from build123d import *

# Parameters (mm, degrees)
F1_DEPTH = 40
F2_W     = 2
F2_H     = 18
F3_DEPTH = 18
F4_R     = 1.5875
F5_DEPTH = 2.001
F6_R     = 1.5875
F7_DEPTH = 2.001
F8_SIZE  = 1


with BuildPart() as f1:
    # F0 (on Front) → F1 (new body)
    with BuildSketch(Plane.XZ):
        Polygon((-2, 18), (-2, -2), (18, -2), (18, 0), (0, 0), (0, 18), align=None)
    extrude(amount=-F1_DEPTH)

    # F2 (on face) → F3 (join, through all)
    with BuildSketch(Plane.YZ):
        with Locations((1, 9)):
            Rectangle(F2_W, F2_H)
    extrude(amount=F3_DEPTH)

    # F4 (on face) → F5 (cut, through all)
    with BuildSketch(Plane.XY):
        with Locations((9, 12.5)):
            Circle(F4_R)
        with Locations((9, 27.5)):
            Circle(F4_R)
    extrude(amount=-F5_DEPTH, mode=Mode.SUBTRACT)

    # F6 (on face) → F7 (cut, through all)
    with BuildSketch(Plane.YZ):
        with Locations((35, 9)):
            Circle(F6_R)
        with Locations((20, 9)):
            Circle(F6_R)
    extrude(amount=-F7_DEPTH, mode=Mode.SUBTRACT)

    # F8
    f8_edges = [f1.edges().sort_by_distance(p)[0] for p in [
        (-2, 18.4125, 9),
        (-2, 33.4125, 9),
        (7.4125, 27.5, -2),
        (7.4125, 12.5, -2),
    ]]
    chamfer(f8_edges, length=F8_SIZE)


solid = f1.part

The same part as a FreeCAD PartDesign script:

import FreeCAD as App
import Part
import Sketcher

V = App.Vector


def edges_at(feature, points):
    """Names of the edges that pass closest to the given points."""
    edges = feature.Shape.Edges
    near = lambda p: min(range(len(edges)), key=lambda i: edges[i].distToShape(Part.Vertex(*p))[0])
    return sorted({f"Edge{near(p) + 1}" for p in points})

doc = App.newDocument("Part")
params = doc.addObject("Spreadsheet::Sheet", "Params")
for row, (alias, value) in enumerate([
    ("sketch1_width", "20 mm"),
    ("sketch1_width2", "18 mm"),
    ("pad1_length", "40 mm"),
    ("sketch2_width", "2 mm"),
    ("sketch2_height", "18 mm"),
    ("pad2_length", "18 mm"),
    ("chamfer_size", "1 mm"),
], start=1):
    params.set(f"A{row}", alias)
    params.set(f"B{row}", "=" + value)
    params.setAlias(f"B{row}", alias)

body = doc.addObject("PartDesign::Body", "Body")

# Sketch on XZ plane
sketch1 = body.newObject("Sketcher::SketchObject", "Sketch")
sketch1.AttachmentSupport = (doc.getObject("XZ_Plane"), [""])
sketch1.MapMode = "FlatFace"
sketch1.addGeometry([
    Part.LineSegment(V(-2, 18, 0), V(-2, -2, 0)),  # 0
    Part.LineSegment(V(-2, -2, 0), V(18, -2, 0)),  # 1
    Part.LineSegment(V(18, -2, 0), V(18, 0, 0)),  # 2
    Part.LineSegment(V(18, 0, 0), V(0, 0, 0)),  # 3
    Part.LineSegment(V(0, 0, 0), V(0, 18, 0)),  # 4
    Part.LineSegment(V(0, 18, 0), V(-2, 18, 0)),  # 5
], False)
sketch1.addConstraint([
    Sketcher.Constraint("Coincident", 0, 2, 1, 1),
    Sketcher.Constraint("Coincident", 1, 2, 2, 1),
    Sketcher.Constraint("Coincident", 2, 2, 3, 1),
    Sketcher.Constraint("Coincident", 3, 2, 4, 1),
    Sketcher.Constraint("Coincident", 4, 2, 5, 1),
    Sketcher.Constraint("Coincident", 5, 2, 0, 1),
    Sketcher.Constraint("Vertical", 0),
    Sketcher.Constraint("Horizontal", 1),
    Sketcher.Constraint("Vertical", 2),
    Sketcher.Constraint("Horizontal", 3),
    Sketcher.Constraint("Vertical", 4),
    Sketcher.Constraint("Horizontal", 5),
    Sketcher.Constraint("Coincident", 3, 2, -1, 1),
    Sketcher.Constraint("Equal", 1, 0),
    Sketcher.Constraint("Equal", 5, 2),
    Sketcher.Constraint("DistanceX", 1, 1, 1, 2, 20.0),
    Sketcher.Constraint("DistanceX", 3, 2, 3, 1, 18.0),
])
sketch1.setExpression("Constraints[15]", "Params.sketch1_width")
sketch1.setExpression("Constraints[16]", "Params.sketch1_width2")
pad1 = body.newObject("PartDesign::Pad", "Pad")
pad1.Profile = sketch1
pad1.setExpression("Length", "Params.pad1_length")
pad1.Reversed = True

# Sketch on YZ plane
sketch2 = body.newObject("Sketcher::SketchObject", "Sketch001")
sketch2.AttachmentSupport = (doc.getObject("YZ_Plane"), [""])
sketch2.MapMode = "FlatFace"
sketch2.addGeometry([
    Part.LineSegment(V(0, 18, 0), V(0, 0, 0)),
    Part.LineSegment(V(0, 0, 0), V(2, 0, 0)),
    Part.LineSegment(V(2, 0, 0), V(2, 18, 0)),
    Part.LineSegment(V(2, 18, 0), V(0, 18, 0)),
], False)
sketch2.addConstraint([
    Sketcher.Constraint("Coincident", 0, 2, 1, 1),
    Sketcher.Constraint("Coincident", 1, 2, 2, 1),
    Sketcher.Constraint("Coincident", 2, 2, 3, 1),
    Sketcher.Constraint("Coincident", 3, 2, 0, 1),
    Sketcher.Constraint("Vertical", 0),
    Sketcher.Constraint("Horizontal", 1),
    Sketcher.Constraint("Vertical", 2),
    Sketcher.Constraint("Horizontal", 3),
    Sketcher.Constraint("Coincident", 0, 2, -1, 1),
    Sketcher.Constraint("DistanceX", 1, 1, 1, 2, 2.0),
    Sketcher.Constraint("DistanceY", 0, 2, 0, 1, 18.0),
])
sketch2.setExpression("Constraints[9]", "Params.sketch2_width")
sketch2.setExpression("Constraints[10]", "Params.sketch2_height")
pad2 = body.newObject("PartDesign::Pad", "Pad001")
pad2.Profile = sketch2
pad2.setExpression("Length", "Params.pad2_length")

# Sketch on XY plane
sketch3 = body.newObject("Sketcher::SketchObject", "Sketch002")
sketch3.AttachmentSupport = (doc.getObject("XY_Plane"), [""])
sketch3.MapMode = "FlatFace"
sketch3.addGeometry([
    Part.Circle(V(9, 12.5, 0), V(0, 0, 1), 1.6),
    Part.Circle(V(9, 27.5, 0), V(0, 0, 1), 1.6),
], False)
sketch3.addConstraint([
    Sketcher.Constraint("Equal", 0, 1),
    Sketcher.Constraint("Vertical", 0, 3, 1, 3),
    Sketcher.Constraint("Diameter", 0, 3.175),
    Sketcher.Constraint("DistanceX", -1, 1, 0, 3, 9.0),
    Sketcher.Constraint("DistanceY", 0, 3, 1, 3, 15.0),
    Sketcher.Constraint("DistanceY", -1, 1, 0, 3, 12.5),
])
pocket1 = body.newObject("PartDesign::Pocket", "Pocket")
pocket1.Profile = sketch3
pocket1.Type = "ThroughAll"

# Sketch on YZ plane
sketch4 = body.newObject("Sketcher::SketchObject", "Sketch003")
sketch4.AttachmentSupport = (doc.getObject("YZ_Plane"), [""])
sketch4.MapMode = "FlatFace"
sketch4.addGeometry([
    Part.Circle(V(35, 9, 0), V(0, 0, 1), 1.6),
    Part.Circle(V(20, 9, 0), V(0, 0, 1), 1.6),
], False)
sketch4.addConstraint([
    Sketcher.Constraint("Equal", 0, 1),
    Sketcher.Constraint("Horizontal", 0, 3, 1, 3),
    Sketcher.Constraint("Diameter", 0, 3.175),
    Sketcher.Constraint("DistanceX", -1, 1, 0, 3, 35.0),
    Sketcher.Constraint("DistanceY", -1, 1, 0, 3, 9.0),
    Sketcher.Constraint("DistanceX", -1, 1, 1, 3, 20.0),
])
pocket2 = body.newObject("PartDesign::Pocket", "Pocket001")
pocket2.Profile = sketch4
pocket2.Type = "ThroughAll"
doc.recompute()

chamfer = body.newObject("PartDesign::Chamfer", "Chamfer")
chamfer.Base = (pocket2, edges_at(pocket2, [
    (-2, 18.413, 9),
    (-2, 33.413, 9),
    (7.412, 27.5, -2),
    (7.412, 12.5, -2),
]))
chamfer.setExpression("Size", "Params.chamfer_size")

doc.recompute()
